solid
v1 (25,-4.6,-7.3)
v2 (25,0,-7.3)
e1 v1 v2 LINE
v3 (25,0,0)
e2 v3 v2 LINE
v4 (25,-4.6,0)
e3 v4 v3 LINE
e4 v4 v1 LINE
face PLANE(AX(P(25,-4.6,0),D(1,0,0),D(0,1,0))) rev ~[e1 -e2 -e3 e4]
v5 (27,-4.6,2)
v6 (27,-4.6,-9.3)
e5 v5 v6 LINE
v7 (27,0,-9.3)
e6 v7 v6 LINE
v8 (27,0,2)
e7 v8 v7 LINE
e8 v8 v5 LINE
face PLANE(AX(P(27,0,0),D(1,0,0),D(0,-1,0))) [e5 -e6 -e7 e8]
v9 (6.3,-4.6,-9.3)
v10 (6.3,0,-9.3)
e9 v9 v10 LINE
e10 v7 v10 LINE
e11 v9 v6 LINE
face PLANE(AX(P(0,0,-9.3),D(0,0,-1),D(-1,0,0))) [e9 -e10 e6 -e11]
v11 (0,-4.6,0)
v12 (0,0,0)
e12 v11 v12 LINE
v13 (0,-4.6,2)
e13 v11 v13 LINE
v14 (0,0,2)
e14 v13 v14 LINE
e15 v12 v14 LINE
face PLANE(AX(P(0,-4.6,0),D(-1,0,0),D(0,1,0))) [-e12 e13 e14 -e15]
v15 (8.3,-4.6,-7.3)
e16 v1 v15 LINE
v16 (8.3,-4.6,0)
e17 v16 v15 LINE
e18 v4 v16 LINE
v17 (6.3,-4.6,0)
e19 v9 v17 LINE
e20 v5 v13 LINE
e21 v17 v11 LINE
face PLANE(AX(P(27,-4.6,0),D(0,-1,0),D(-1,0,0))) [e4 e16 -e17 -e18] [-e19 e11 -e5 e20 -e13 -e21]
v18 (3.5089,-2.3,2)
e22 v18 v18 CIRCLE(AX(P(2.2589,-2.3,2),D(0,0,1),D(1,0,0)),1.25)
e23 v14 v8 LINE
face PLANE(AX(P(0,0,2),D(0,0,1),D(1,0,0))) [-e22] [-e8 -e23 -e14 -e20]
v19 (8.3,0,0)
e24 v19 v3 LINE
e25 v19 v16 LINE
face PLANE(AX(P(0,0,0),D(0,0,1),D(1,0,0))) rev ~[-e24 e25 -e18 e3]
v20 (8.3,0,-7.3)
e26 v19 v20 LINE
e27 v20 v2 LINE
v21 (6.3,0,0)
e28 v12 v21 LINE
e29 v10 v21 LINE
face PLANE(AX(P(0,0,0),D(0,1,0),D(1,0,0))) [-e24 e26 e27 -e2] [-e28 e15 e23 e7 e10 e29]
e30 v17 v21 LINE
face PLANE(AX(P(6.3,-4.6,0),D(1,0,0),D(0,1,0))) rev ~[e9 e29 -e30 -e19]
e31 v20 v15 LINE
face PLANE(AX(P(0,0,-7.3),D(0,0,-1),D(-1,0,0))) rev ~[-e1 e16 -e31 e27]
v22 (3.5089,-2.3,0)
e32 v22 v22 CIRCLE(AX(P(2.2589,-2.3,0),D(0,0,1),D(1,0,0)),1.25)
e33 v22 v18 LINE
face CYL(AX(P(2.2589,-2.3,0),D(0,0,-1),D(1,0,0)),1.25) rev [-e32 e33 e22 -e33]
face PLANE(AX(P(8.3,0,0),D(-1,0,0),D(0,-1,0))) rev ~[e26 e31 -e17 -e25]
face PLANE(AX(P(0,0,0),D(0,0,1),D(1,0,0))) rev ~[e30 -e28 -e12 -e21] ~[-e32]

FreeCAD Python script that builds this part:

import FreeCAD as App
import Part
import Sketcher

V = App.Vector
Q = App.Units.Quantity

doc = App.newDocument("Part")
params = doc.addObject("Spreadsheet::Sheet", "Params")
for row, (alias, value) in enumerate([
    ("sketch1_diameter", "2.5 mm"),
    ("sketch1_width", "27 mm"),
    ("pad1_length", "2 mm"),
    ("sketch2_width", "2 mm"),
    ("sketch2_height", "4.6 mm"),
    ("pad2_length", "7.3 mm"),
    ("sketch3_width", "20.7 mm"),
    ("sketch3_height", "4.6 mm"),
    ("pad3_length", "2 mm"),
], start=1):
    params.set(f"A{row}", alias)
    params.set(f"B{row}", "=" + value)
    params.setAlias(f"B{row}", alias)

body = doc.addObject("PartDesign::Body", "Body")

sketch1 = body.newObject("Sketcher::SketchObject", "Sketch")
sketch1.AttachmentSupport = (doc.getObject("XY_Plane"), [""])
sketch1.MapMode = "FlatFace"
sketch1.addGeometry([
    Part.LineSegment(V(27, 0, 0), V(0, 0, 0)),
    Part.LineSegment(V(0, 0, 0), V(0, -4.6, 0)),
    Part.LineSegment(V(0, -4.6, 0), V(27, -4.6, 0)),
    Part.LineSegment(V(27, -4.6, 0), V(27, 0, 0)),
    Part.Circle(V(2.3, -2.3, 0), V(0, 0, 1), 1.2),
], False)
sketch1.addConstraint([
    Sketcher.Constraint("Coincident", 0, 2, 1, 1),
    Sketcher.Constraint("Coincident", 1, 2, 2, 1),
    Sketcher.Constraint("Coincident", 2, 2, 3, 1),
    Sketcher.Constraint("Coincident", 3, 2, 0, 1),
    Sketcher.Constraint("Horizontal", 0),
    Sketcher.Constraint("Vertical", 1),
    Sketcher.Constraint("Horizontal", 2),
    Sketcher.Constraint("Vertical", 3),
    Sketcher.Constraint("Coincident", 0, 2, -1, 1),
    Sketcher.Constraint("Diameter", 4, Q("2.5 mm")),
    Sketcher.Constraint("DistanceX", 0, 2, 0, 1, Q("27 mm")),
    Sketcher.Constraint("DistanceY", 4, 3, -1, 1, Q("2.3 mm")),
    Sketcher.Constraint("DistanceY", 1, 2, 4, 3, Q("2.3 mm")),
    Sketcher.Constraint("DistanceX", -1, 1, 4, 3, Q("2.259 mm")),
])
sketch1.setExpression("Constraints[9]", "Params.sketch1_diameter")
sketch1.setExpression("Constraints[10]", "Params.sketch1_width")
pad1 = body.newObject("PartDesign::Pad", "Pad")
pad1.Profile = sketch1
pad1.setExpression("Length", "Params.pad1_length")

sketch2 = body.newObject("Sketcher::SketchObject", "Sketch001")
sketch2.AttachmentSupport = (doc.getObject("XY_Plane"), [""])
sketch2.MapMode = "FlatFace"
sketch2.addGeometry([
    Part.LineSegment(V(8.3, -4.6, 0), V(6.3, -4.6, 0)),
    Part.LineSegment(V(6.3, -4.6, 0), V(6.3, 0, 0)),
    Part.LineSegment(V(6.3, 0, 0), V(8.3, 0, 0)),
    Part.LineSegment(V(8.3, 0, 0), V(8.3, -4.6, 0)),
    Part.LineSegment(V(27, -4.6, 0), V(25, -4.6, 0)),
    Part.LineSegment(V(25, -4.6, 0), V(25, 0, 0)),
    Part.LineSegment(V(25, 0, 0), V(27, 0, 0)),
    Part.LineSegment(V(27, 0, 0), V(27, -4.6, 0)),
], False)
sketch2.addConstraint([
    Sketcher.Constraint("Coincident", 0, 2, 1, 1),
    Sketcher.Constraint("Coincident", 1, 2, 2, 1),
    Sketcher.Constraint("Coincident", 2, 2, 3, 1),
    Sketcher.Constraint("Coincident", 3, 2, 0, 1),
    Sketcher.Constraint("Coincident", 4, 2, 5, 1),
    Sketcher.Constraint("Coincident", 5, 2, 6, 1),
    Sketcher.Constraint("Coincident", 6, 2, 7, 1),
    Sketcher.Constraint("Coincident", 7, 2, 4, 1),
    Sketcher.Constraint("Horizontal", 0),
    Sketcher.Constraint("Vertical", 1),
    Sketcher.Constraint("Horizontal", 2),
    Sketcher.Constraint("Vertical", 3),
    Sketcher.Constraint("Horizontal", 4),
    Sketcher.Constraint("Vertical", 5),
    Sketcher.Constraint("Horizontal", 6),
    Sketcher.Constraint("Vertical", 7),
    Sketcher.Constraint("PointOnObject", 1, 2, -1),
    Sketcher.Constraint("PointOnObject", 5, 2, -1),
    Sketcher.Constraint("Horizontal", 3, 2, 4, 2),
    Sketcher.Constraint("Equal", 2, 4),
    Sketcher.Constraint("DistanceX", 0, 2, 0, 1, Q("2 mm")),
    Sketcher.Constraint("DistanceX", 3, 2, 4, 2, Q("16.7 mm")),
    Sketcher.Constraint("DistanceY", 1, 1, 1, 2, Q("4.6 mm")),
    Sketcher.Constraint("DistanceX", -1, 1, 4, 2, Q("25 mm")),
])
sketch2.setExpression("Constraints[20]", "Params.sketch2_width")
sketch2.setExpression("Constraints[22]", "Params.sketch2_height")
pad2 = body.newObject("PartDesign::Pad", "Pad001")
pad2.Profile = sketch2
pad2.setExpression("Length", "Params.pad2_length")
pad2.Reversed = True

sketch3 = body.newObject("Sketcher::SketchObject", "Sketch002")
sketch3.AttachmentSupport = (doc.getObject("XY_Plane"), [""])
sketch3.MapMode = "FlatFace"
sketch3.AttachmentOffset = App.Placement(V(0, 0, -7.3), App.Rotation())
sketch3.addGeometry([
    Part.LineSegment(V(6.3, -4.6, 0), V(6.3, 0, 0)),
    Part.LineSegment(V(6.3, 0, 0), V(27, 0, 0)),
    Part.LineSegment(V(27, 0, 0), V(27, -4.6, 0)),
    Part.LineSegment(V(27, -4.6, 0), V(6.3, -4.6, 0)),
], False)
sketch3.addConstraint([
    Sketcher.Constraint("Coincident", 0, 2, 1, 1),
    Sketcher.Constraint("Coincident", 1, 2, 2, 1),
    Sketcher.Constraint("Coincident", 2, 2, 3, 1),
    Sketcher.Constraint("Coincident", 3, 2, 0, 1),
    Sketcher.Constraint("Vertical", 0),
    Sketcher.Constraint("Horizontal", 1),
    Sketcher.Constraint("Vertical", 2),
    Sketcher.Constraint("Horizontal", 3),
    Sketcher.Constraint("PointOnObject", 0, 2, -1),
    Sketcher.Constraint("DistanceX", 1, 1, 1, 2, Q("20.7 mm")),
    Sketcher.Constraint("DistanceY", 0, 1, 0, 2, Q("4.6 mm")),
    Sketcher.Constraint("DistanceX", -1, 1, 1, 2, Q("27 mm")),
])
sketch3.setExpression("Constraints[9]", "Params.sketch3_width")
sketch3.setExpression("Constraints[10]", "Params.sketch3_height")
pad3 = body.newObject("PartDesign::Pad", "Pad002")
pad3.Profile = sketch3
pad3.setExpression("Length", "Params.pad3_length")
pad3.Reversed = True

doc.recompute()
